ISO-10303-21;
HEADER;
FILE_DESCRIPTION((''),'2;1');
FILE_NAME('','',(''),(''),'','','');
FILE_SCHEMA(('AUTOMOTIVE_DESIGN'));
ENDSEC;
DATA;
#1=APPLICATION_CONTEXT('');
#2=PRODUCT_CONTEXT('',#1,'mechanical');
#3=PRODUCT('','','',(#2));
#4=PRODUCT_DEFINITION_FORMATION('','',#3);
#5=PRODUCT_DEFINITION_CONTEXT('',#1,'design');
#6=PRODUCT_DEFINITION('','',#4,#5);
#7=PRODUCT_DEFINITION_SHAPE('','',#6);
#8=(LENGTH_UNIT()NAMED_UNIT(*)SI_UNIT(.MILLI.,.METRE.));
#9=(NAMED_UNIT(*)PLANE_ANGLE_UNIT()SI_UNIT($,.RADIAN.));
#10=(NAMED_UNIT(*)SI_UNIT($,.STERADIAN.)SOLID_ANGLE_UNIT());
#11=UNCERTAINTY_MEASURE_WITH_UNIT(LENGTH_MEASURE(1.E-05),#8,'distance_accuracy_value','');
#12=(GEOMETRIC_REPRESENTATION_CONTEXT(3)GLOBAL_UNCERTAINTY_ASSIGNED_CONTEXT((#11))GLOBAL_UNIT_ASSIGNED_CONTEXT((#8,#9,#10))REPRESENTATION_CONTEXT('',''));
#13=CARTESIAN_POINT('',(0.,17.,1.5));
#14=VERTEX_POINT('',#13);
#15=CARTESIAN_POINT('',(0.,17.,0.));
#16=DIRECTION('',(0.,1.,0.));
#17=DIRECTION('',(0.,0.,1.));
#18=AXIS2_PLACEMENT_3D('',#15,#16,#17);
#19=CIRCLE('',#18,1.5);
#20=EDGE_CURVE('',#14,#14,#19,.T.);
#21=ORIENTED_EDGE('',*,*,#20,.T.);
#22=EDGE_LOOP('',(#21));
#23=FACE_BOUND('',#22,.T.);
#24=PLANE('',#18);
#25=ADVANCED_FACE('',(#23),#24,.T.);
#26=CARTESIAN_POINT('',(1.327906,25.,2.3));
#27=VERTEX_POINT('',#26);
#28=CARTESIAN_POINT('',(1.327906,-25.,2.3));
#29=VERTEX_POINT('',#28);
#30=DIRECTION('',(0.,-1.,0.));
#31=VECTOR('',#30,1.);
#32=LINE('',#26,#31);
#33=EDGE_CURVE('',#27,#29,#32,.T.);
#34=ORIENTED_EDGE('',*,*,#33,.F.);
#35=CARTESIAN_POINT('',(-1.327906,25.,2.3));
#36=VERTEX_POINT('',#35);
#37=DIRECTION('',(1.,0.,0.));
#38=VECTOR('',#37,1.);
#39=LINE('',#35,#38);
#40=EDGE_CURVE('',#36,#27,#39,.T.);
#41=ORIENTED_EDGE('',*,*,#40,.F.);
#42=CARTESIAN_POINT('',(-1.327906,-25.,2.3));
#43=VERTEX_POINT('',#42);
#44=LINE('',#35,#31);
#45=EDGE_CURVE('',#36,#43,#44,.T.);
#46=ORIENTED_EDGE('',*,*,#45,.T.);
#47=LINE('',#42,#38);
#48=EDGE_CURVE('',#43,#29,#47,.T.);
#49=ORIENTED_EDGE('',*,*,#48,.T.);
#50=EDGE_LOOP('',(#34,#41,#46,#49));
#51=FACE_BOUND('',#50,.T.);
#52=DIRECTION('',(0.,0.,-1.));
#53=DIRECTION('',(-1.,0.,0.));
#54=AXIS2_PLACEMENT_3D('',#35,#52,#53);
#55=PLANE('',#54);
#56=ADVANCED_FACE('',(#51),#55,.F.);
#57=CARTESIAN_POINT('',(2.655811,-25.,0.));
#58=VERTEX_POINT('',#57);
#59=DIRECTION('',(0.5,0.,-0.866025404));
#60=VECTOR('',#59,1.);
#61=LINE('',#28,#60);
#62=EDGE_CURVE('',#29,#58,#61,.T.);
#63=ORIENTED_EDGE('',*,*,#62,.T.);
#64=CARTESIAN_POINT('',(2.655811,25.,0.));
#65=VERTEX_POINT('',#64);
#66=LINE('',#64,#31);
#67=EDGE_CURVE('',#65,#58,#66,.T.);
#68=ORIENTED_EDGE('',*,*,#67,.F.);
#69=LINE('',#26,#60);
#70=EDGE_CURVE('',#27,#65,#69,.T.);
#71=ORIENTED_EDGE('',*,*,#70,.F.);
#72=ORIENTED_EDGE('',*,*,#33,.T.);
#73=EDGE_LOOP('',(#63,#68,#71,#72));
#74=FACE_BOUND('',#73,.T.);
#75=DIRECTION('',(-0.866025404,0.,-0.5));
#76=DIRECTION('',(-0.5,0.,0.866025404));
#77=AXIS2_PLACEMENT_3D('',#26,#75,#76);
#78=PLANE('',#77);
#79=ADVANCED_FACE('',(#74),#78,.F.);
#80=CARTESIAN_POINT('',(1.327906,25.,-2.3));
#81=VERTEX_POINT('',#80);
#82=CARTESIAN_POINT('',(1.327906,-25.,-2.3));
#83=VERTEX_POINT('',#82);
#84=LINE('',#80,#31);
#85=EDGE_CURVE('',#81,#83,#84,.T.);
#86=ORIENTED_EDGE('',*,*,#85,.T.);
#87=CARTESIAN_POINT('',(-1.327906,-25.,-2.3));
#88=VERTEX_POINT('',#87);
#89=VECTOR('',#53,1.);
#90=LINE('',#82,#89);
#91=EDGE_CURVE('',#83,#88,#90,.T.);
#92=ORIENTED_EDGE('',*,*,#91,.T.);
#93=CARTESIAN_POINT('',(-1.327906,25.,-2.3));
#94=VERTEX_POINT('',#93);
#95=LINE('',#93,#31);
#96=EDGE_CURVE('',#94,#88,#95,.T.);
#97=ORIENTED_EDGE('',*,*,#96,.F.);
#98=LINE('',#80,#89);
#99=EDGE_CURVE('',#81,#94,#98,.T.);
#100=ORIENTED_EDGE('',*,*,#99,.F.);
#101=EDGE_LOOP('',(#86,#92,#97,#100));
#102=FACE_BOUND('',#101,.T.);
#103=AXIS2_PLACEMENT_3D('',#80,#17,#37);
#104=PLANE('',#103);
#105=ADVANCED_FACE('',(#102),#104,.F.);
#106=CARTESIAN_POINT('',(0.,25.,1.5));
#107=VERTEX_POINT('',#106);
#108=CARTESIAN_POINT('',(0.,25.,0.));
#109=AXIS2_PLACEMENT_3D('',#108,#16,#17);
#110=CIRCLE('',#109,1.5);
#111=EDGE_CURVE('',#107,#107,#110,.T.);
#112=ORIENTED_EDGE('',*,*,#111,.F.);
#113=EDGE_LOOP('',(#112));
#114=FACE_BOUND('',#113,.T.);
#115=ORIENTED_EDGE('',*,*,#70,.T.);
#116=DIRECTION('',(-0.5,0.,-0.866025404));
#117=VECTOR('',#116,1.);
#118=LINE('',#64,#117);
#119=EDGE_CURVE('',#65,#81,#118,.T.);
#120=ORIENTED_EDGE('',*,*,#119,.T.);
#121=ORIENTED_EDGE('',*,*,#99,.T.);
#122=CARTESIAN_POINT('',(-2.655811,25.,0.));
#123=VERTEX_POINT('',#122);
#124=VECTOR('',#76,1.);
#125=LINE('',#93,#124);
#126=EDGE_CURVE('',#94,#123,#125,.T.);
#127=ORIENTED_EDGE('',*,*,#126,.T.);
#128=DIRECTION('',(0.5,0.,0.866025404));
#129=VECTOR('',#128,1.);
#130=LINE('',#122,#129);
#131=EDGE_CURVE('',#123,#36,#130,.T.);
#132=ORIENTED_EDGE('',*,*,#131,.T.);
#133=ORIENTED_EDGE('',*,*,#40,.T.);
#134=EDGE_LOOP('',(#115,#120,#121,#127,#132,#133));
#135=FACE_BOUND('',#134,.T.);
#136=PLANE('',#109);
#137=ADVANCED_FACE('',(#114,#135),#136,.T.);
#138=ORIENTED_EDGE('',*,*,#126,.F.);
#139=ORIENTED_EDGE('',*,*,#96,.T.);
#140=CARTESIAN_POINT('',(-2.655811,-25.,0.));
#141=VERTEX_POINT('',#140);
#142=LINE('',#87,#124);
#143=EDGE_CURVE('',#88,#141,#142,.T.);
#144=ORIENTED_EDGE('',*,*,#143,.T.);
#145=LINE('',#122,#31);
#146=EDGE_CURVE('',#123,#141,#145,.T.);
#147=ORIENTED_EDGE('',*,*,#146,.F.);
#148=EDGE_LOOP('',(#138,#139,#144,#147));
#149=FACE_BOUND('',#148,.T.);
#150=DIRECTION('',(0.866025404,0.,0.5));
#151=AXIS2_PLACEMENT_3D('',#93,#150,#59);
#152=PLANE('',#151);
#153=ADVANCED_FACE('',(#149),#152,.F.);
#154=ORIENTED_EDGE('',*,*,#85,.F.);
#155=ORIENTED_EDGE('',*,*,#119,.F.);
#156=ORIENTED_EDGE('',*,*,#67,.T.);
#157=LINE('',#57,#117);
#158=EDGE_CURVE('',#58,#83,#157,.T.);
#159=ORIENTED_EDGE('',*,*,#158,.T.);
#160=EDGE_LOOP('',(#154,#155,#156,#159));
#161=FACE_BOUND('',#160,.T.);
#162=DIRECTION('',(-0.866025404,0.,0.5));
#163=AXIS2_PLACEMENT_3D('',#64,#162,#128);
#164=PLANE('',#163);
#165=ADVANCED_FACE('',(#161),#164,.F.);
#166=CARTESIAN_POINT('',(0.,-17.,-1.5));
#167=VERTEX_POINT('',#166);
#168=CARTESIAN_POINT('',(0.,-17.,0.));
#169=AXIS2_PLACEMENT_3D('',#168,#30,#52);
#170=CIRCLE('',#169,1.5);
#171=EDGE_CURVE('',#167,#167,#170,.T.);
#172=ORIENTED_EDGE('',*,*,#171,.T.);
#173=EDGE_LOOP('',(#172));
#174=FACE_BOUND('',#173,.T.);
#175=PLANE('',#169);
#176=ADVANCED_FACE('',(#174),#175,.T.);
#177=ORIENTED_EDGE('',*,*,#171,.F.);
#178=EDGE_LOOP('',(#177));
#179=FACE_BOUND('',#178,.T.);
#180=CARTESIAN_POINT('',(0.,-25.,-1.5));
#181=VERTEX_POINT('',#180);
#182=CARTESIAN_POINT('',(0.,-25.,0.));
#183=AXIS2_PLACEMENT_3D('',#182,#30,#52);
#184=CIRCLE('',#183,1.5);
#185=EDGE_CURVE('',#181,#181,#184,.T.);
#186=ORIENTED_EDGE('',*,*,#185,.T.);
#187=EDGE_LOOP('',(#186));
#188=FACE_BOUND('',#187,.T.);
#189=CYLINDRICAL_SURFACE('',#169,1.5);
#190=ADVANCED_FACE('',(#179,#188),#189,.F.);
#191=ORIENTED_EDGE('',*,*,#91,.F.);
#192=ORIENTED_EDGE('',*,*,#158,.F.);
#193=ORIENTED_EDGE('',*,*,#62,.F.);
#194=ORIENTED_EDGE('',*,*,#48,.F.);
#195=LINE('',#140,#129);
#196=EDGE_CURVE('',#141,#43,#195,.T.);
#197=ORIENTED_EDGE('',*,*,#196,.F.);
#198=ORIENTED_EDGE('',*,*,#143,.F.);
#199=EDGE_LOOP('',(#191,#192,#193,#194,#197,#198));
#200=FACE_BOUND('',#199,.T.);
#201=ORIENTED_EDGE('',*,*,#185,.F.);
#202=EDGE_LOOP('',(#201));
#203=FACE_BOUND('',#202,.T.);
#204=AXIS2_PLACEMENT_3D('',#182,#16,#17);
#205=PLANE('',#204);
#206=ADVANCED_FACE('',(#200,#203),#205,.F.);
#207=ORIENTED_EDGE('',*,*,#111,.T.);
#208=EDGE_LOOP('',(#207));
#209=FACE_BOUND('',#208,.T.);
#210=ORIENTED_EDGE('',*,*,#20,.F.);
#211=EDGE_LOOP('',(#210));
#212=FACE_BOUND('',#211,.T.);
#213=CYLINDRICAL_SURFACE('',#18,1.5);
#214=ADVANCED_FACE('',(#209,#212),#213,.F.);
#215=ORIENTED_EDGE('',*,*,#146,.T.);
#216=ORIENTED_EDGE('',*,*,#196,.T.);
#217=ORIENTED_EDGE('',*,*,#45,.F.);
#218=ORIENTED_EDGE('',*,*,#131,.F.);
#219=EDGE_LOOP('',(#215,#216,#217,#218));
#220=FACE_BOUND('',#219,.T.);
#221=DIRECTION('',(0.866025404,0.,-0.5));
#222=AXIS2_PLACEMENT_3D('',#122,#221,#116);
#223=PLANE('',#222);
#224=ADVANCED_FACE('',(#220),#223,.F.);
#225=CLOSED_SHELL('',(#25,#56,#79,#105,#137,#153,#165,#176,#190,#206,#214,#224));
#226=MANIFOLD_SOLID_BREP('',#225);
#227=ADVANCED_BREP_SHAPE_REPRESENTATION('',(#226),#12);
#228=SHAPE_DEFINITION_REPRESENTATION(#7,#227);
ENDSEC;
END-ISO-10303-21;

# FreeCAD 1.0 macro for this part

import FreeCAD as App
import Part
import Sketcher

V = App.Vector
Q = App.Units.Quantity


def add_polygon(sketch, points):
    """Adds a closed chain of lines whose ends are joined by coincident constraints."""
    first, n = sketch.GeometryCount, len(points)
    for a, b in zip(points, points[1:] + points[:1]):
        sketch.addGeometry(Part.LineSegment(App.Vector(*a, 0), App.Vector(*b, 0)), False)
    for i in range(n):
        sketch.addConstraint(Sketcher.Constraint("Coincident", first + i, 2, first + (i + 1) % n, 1))

doc = App.newDocument("Part")
body = doc.addObject("PartDesign::Body", "Body")

# Sketch on XZ plane
sketch1 = body.newObject("Sketcher::SketchObject", "Sketch")
sketch1.AttachmentSupport = (doc.getObject("XZ_Plane"), [""])
sketch1.MapMode = "FlatFace"
add_polygon(sketch1, [(2.7, 0), (1.3, -2.3), (-1.3, -2.3), (-2.7, 0), (-1.3, 2.3), (1.3, 2.3)])  # lines 0-5
sketch1.addConstraint([
    Sketcher.Constraint("Horizontal", 1),
    Sketcher.Constraint("Horizontal", 4),
    Sketcher.Constraint("Symmetric", 0, 2, 3, 2, -1, 1),
    Sketcher.Constraint("Symmetric", 2, 2, 5, 2, -1, 1),
    Sketcher.Constraint("PointOnObject", 2, 2, -1),
    Sketcher.Constraint("Parallel", 2, 5),
    Sketcher.Constraint("Vertical", 1, 2, 3, 2),
    Sketcher.Constraint("Angle", 0, Q("-120 deg")),
    Sketcher.Constraint("DistanceY", 0, 2, -1, 1, 2.3),
    Sketcher.Constraint("DistanceX", 1, 2, 1, 1, 2.655811),
])
pad1 = body.newObject("PartDesign::Pad", "Pad")
pad1.Profile = sketch1
pad1.Length = 50
pad1.Midplane = True

# Sketch on XZ plane
sketch2 = body.newObject("Sketcher::SketchObject", "Sketch001")
sketch2.AttachmentSupport = (doc.getObject("XZ_Plane"), [""])
sketch2.MapMode = "FlatFace"
sketch2.AttachmentOffset = App.Placement(V(0, 0, -25), App.Rotation())
sketch2.addGeometry(Part.Circle(V(0, 0, 0), V(0, 0, 1), 1.5), False)
sketch2.addConstraint([
    Sketcher.Constraint("Coincident", 0, 3, -1, 1),
    Sketcher.Constraint("Diameter", 0, 3.0),
])
pocket1 = body.newObject("PartDesign::Pocket", "Pocket")
pocket1.Profile = sketch2
pocket1.Length = 8
pocket1.Reversed = True

# Sketch on XZ plane
sketch3 = body.newObject("Sketcher::SketchObject", "Sketch002")
sketch3.AttachmentSupport = (doc.getObject("XZ_Plane"), [""])
sketch3.MapMode = "FlatFace"
sketch3.AttachmentOffset = App.Placement(V(0, 0, 17), App.Rotation())
sketch3.addGeometry(Part.Circle(V(0, 0, 0), V(0, 0, 1), 1.5), False)
sketch3.addConstraint([
    Sketcher.Constraint("Coincident", 0, 3, -1, 1),
    Sketcher.Constraint("Diameter", 0, 3.0),
])
pocket2 = body.newObject("PartDesign::Pocket", "Pocket001")
pocket2.Profile = sketch3
pocket2.Length = 8
pocket2.Reversed = True

doc.recompute()
